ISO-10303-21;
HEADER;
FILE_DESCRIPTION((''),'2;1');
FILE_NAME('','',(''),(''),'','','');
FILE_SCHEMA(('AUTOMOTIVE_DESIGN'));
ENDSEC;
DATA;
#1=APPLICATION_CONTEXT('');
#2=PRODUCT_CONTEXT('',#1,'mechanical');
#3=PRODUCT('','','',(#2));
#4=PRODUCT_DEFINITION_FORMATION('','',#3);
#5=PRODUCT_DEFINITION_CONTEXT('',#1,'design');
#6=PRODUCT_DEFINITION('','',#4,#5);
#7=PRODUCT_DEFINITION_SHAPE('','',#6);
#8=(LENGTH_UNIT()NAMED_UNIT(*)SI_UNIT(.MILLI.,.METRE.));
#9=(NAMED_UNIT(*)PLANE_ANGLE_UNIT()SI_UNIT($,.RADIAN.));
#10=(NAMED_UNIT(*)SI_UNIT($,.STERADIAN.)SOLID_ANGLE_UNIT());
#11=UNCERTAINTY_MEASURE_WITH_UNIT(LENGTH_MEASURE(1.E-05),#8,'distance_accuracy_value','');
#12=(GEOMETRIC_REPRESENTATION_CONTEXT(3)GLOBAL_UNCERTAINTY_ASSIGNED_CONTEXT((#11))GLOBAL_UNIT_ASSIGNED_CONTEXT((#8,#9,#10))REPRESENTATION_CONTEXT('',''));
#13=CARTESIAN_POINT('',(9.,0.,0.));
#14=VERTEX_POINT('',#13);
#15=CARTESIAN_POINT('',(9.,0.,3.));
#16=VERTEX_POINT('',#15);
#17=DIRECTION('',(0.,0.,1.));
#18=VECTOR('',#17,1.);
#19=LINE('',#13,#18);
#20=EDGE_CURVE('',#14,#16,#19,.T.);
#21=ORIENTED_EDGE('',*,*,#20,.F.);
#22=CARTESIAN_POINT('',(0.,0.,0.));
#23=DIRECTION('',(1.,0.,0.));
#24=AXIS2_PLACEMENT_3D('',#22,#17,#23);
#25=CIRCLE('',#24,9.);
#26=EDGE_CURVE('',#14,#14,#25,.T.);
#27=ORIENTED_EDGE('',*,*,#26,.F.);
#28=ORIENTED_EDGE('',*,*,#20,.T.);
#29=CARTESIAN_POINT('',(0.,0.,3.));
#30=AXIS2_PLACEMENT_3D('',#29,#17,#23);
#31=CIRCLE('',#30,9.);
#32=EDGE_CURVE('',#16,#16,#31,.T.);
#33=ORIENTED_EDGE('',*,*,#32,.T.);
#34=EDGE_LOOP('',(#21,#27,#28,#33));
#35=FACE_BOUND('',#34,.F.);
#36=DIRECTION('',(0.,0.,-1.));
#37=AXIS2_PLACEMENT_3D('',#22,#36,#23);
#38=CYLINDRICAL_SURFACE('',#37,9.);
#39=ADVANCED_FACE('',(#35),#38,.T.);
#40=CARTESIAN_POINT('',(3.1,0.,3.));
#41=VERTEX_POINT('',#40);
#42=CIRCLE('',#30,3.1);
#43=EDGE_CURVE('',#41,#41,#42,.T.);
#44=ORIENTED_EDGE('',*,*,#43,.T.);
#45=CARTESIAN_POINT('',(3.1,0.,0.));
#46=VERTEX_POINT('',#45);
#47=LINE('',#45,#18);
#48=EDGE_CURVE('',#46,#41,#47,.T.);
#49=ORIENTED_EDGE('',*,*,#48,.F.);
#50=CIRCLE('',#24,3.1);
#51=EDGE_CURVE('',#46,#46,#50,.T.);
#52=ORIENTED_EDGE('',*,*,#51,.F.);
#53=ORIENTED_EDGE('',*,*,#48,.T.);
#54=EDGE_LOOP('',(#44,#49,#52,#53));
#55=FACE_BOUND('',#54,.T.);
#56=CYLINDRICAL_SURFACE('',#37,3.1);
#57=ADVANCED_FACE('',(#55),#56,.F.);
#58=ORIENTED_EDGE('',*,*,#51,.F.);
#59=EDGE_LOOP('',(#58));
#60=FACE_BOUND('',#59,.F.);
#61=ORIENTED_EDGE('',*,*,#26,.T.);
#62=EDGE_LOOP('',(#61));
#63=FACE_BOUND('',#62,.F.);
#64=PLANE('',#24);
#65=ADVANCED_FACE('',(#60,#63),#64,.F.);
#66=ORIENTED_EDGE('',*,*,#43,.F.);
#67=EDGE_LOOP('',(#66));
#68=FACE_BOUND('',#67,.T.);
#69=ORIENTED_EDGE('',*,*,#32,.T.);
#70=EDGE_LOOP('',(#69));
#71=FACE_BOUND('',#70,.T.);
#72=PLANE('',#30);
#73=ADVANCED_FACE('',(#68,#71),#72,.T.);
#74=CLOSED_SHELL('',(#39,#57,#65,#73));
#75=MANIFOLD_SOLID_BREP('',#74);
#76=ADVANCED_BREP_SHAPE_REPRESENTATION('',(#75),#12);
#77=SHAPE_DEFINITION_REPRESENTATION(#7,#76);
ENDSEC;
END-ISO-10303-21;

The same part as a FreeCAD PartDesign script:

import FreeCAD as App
import Part
import Sketcher
from FreeCAD import Vector

doc = App.newDocument("Part")
body = doc.addObject("PartDesign::Body", "Body")

# Sketch on XY plane
sketch1 = body.newObject("Sketcher::SketchObject", "Sketch")
sketch1.AttachmentSupport = (doc.getObject("XY_Plane"), [""])
sketch1.MapMode = "FlatFace"
sketch1.addGeometry([
    Part.Circle(Vector(0, 0, 0), Vector(0, 0, 1), 9),
    Part.Circle(Vector(0, 0, 0), Vector(0, 0, 1), 3.1),
], False)
sketch1.addConstraint([
    Sketcher.Constraint("Coincident", 0, 3, -1, 1),
    Sketcher.Constraint("Coincident", 1, 3, -1, 1),
    Sketcher.Constraint("Diameter", 0, 18.0),
    Sketcher.Constraint("Diameter", 1, 6.2),
])
pad1 = body.newObject("PartDesign::Pad", "Pad")
pad1.Profile = sketch1
pad1.Length = 3

doc.recompute()
